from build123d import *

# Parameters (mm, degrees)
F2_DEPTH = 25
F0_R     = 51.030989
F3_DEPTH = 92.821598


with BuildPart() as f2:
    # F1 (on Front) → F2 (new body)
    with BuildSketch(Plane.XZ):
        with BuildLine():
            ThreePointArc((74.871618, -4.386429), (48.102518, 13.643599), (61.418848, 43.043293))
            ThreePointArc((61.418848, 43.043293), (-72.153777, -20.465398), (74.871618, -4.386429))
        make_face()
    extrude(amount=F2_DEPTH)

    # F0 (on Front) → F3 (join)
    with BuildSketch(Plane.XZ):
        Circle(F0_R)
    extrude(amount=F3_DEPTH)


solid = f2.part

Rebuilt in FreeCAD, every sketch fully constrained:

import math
import FreeCAD as App
import Part
import Sketcher
Q = App.Units.Quantity

doc = App.newDocument("Part")
body = doc.addObject("PartDesign::Body", "Body")

sketch1 = body.newObject("Sketcher::SketchObject", "Sketch")
sketch1.AttachmentSupport = (doc.getObject("XZ_Plane"), [""])
sketch1.MapMode = "FlatFace"
sketch1.addGeometry([
    Part.ArcOfCircle(Part.Circle(App.Vector(72.153777, 20.465399, 0), App.Vector(0, 0, 1), 25), math.radians(115.429308), math.radians(276.241168)),
    Part.ArcOfCircle(Part.Circle(App.Vector(0, 0, 0), App.Vector(0, 0, 1), 75), math.radians(35.023375), math.radians(356.647102)),
], False)
sketch1.addConstraint([
    Sketcher.Constraint("Coincident", 0, 1, 1, 1),
    Sketcher.Constraint("Coincident", 1, 2, 0, 2),
    Sketcher.Constraint("Coincident", 1, 3, -1, 1),
    Sketcher.Constraint("Radius", 0, Q("25 mm")),
    Sketcher.Constraint("Radius", 1, Q("75 mm")),
    Sketcher.Constraint("DistanceY", -1, 1, 0, 3, Q("20.465399 mm")),
    Sketcher.Constraint("DistanceX", -1, 1, 0, 1, Q("61.418848 mm")),
])
pad1 = body.newObject("PartDesign::Pad", "Pad")
pad1.Profile = sketch1
pad1.Length = 25

sketch2 = body.newObject("Sketcher::SketchObject", "Sketch001")
sketch2.AttachmentSupport = (doc.getObject("XZ_Plane"), [""])
sketch2.MapMode = "FlatFace"
sketch2.addGeometry(Part.Circle(App.Vector(0, 0, 0), App.Vector(0, 0, 1), 51.030989), False)
sketch2.addConstraint([
    Sketcher.Constraint("Coincident", 0, 3, -1, 1),
    Sketcher.Constraint("Diameter", 0, Q("102.061978 mm")),
])
pad2 = body.newObject("PartDesign::Pad", "Pad001")
pad2.Profile = sketch2
pad2.Length = 92.821598

doc.recompute()
